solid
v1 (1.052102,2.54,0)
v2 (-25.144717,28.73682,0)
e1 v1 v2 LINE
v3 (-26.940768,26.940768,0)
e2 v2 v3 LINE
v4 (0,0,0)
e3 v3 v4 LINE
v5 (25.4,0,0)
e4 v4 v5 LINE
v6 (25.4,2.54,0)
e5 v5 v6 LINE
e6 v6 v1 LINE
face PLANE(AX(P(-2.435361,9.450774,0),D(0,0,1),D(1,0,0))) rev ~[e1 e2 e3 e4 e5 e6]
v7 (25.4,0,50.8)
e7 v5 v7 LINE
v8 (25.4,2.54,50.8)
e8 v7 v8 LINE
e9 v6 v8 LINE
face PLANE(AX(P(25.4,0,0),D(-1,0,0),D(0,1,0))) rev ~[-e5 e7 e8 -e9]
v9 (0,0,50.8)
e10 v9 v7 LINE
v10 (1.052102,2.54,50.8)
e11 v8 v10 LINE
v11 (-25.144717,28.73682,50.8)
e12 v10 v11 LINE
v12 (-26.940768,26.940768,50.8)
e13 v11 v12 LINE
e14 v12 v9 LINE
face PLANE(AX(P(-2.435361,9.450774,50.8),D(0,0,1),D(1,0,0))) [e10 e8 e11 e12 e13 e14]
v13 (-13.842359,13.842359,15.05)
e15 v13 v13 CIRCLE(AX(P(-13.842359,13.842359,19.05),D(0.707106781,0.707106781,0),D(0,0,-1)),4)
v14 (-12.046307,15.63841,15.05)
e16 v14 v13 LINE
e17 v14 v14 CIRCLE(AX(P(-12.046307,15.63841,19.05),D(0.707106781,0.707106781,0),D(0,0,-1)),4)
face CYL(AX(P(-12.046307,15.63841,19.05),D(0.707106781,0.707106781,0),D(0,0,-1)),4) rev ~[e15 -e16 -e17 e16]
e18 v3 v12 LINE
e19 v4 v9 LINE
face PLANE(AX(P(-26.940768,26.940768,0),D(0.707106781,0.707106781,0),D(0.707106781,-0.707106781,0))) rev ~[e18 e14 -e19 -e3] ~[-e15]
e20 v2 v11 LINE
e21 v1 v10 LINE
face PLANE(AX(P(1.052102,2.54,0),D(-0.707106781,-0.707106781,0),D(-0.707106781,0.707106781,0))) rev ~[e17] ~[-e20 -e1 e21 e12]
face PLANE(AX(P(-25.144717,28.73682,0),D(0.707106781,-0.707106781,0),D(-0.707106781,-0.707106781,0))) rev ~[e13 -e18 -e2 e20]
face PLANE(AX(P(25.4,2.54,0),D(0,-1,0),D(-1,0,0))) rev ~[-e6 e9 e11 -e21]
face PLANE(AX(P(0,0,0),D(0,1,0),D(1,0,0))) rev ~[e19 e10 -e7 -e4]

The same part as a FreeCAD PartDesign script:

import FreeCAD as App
import Part
import Sketcher

V = App.Vector
Q = App.Units.Quantity

doc = App.newDocument("Part")
params = doc.addObject("Spreadsheet::Sheet", "Params")
for row, (alias, value) in enumerate([
    ("sketch1_width", "1 in"),
    ("sketch1_height", "0.1 in"),
    ("sketch1_length", "1.5 in"),
    ("sketch1_length2", "0.1 in"),
    ("pad1_length", "2 in"),
], start=1):
    params.set(f"A{row}", alias)
    params.set(f"B{row}", "=" + value)
    params.setAlias(f"B{row}", alias)

body = doc.addObject("PartDesign::Body", "Body")

sketch1 = doc.addObject("Sketcher::SketchObject", "Sketch")
body.addObject(sketch1)
sketch1.AttachmentSupport = (doc.XY_Plane, [""])
sketch1.MapMode = "FlatFace"
sketch1.addGeometry(Part.LineSegment(V(-26.940768, 26.940768, 0), V(0, 0, 0)), False)
sketch1.addGeometry(Part.LineSegment(V(0, 0, 0), V(25.4, 0, 0)), False)
sketch1.addGeometry(Part.LineSegment(V(25.4, 0, 0), V(25.4, 2.54, 0)), False)
sketch1.addGeometry(Part.LineSegment(V(25.4, 2.54, 0), V(1.052102, 2.54, 0)), False)
sketch1.addGeometry(Part.LineSegment(V(1.052102, 2.54, 0), V(-25.144717, 28.73682, 0)), False)
sketch1.addGeometry(Part.LineSegment(V(-25.144717, 28.73682, 0), V(-26.940768, 26.940768, 0)), False)
sketch1.addConstraint(Sketcher.Constraint("Coincident", 0, 2, 1, 1))
sketch1.addConstraint(Sketcher.Constraint("Coincident", 1, 2, 2, 1))
sketch1.addConstraint(Sketcher.Constraint("Coincident", 2, 2, 3, 1))
sketch1.addConstraint(Sketcher.Constraint("Coincident", 3, 2, 4, 1))
sketch1.addConstraint(Sketcher.Constraint("Coincident", 4, 2, 5, 1))
sketch1.addConstraint(Sketcher.Constraint("Coincident", 5, 2, 0, 1))
sketch1.addConstraint(Sketcher.Constraint("Horizontal", 1))
sketch1.addConstraint(Sketcher.Constraint("Vertical", 2))
sketch1.addConstraint(Sketcher.Constraint("Horizontal", 3))
sketch1.addConstraint(Sketcher.Constraint("Coincident", 0, 2, -1, 1))
sketch1.addConstraint(Sketcher.Constraint("Parallel", 0, 4))
sketch1.addConstraint(Sketcher.Constraint("Perpendicular", 4, 5))
sketch1.addConstraint(Sketcher.Constraint("DistanceX", 1, 1, 1, 2, Q("1 in")))
sketch1.addConstraint(Sketcher.Constraint("DistanceY", 2, 1, 2, 2, Q("0.1 in")))
sketch1.addConstraint(Sketcher.Constraint("Angle", 0, Q("-45 deg")))
sketch1.addConstraint(Sketcher.Constraint("Distance", 0, Q("1.5 in")))
sketch1.addConstraint(Sketcher.Constraint("Distance", 5, Q("0.1 in")))
sketch1.setExpression("Constraints[12]", "Params.sketch1_width")
sketch1.setExpression("Constraints[13]", "Params.sketch1_height")
sketch1.setExpression("Constraints[15]", "Params.sketch1_length")
sketch1.setExpression("Constraints[16]", "Params.sketch1_length2")
pad1 = doc.addObject("PartDesign::Pad", "Pad")
body.addObject(pad1)
pad1.Profile = sketch1
pad1.setExpression("Length", "Params.pad1_length")

sketch2 = doc.addObject("Sketcher::SketchObject", "Sketch001")
body.addObject(sketch2)
sketch2.Placement = App.Placement(V(1.796051, 1.796051, 0), App.Rotation(V(0, 0, -1), V(-0.707106781, 0.707106781, 0), V(0.707106781, 0.707106781, 0), "ZXY"))
sketch2.addGeometry(Part.Circle(V(-19.05, 19.576051, 0), V(0, 0, 1), 4), False)
sketch2.addConstraint(Sketcher.Constraint("Diameter", 0, Q("8 mm")))
sketch2.addConstraint(Sketcher.Constraint("DistanceX", 0, 3, -1, 1, Q("0.75 in")))
sketch2.addConstraint(Sketcher.Constraint("DistanceY", -1, 1, 0, 3, Q("19.576051 mm")))
pocket1 = doc.addObject("PartDesign::Pocket", "Pocket")
body.addObject(pocket1)
pocket1.Profile = sketch2
pocket1.Type = "UpToFirst"

doc.recompute()
